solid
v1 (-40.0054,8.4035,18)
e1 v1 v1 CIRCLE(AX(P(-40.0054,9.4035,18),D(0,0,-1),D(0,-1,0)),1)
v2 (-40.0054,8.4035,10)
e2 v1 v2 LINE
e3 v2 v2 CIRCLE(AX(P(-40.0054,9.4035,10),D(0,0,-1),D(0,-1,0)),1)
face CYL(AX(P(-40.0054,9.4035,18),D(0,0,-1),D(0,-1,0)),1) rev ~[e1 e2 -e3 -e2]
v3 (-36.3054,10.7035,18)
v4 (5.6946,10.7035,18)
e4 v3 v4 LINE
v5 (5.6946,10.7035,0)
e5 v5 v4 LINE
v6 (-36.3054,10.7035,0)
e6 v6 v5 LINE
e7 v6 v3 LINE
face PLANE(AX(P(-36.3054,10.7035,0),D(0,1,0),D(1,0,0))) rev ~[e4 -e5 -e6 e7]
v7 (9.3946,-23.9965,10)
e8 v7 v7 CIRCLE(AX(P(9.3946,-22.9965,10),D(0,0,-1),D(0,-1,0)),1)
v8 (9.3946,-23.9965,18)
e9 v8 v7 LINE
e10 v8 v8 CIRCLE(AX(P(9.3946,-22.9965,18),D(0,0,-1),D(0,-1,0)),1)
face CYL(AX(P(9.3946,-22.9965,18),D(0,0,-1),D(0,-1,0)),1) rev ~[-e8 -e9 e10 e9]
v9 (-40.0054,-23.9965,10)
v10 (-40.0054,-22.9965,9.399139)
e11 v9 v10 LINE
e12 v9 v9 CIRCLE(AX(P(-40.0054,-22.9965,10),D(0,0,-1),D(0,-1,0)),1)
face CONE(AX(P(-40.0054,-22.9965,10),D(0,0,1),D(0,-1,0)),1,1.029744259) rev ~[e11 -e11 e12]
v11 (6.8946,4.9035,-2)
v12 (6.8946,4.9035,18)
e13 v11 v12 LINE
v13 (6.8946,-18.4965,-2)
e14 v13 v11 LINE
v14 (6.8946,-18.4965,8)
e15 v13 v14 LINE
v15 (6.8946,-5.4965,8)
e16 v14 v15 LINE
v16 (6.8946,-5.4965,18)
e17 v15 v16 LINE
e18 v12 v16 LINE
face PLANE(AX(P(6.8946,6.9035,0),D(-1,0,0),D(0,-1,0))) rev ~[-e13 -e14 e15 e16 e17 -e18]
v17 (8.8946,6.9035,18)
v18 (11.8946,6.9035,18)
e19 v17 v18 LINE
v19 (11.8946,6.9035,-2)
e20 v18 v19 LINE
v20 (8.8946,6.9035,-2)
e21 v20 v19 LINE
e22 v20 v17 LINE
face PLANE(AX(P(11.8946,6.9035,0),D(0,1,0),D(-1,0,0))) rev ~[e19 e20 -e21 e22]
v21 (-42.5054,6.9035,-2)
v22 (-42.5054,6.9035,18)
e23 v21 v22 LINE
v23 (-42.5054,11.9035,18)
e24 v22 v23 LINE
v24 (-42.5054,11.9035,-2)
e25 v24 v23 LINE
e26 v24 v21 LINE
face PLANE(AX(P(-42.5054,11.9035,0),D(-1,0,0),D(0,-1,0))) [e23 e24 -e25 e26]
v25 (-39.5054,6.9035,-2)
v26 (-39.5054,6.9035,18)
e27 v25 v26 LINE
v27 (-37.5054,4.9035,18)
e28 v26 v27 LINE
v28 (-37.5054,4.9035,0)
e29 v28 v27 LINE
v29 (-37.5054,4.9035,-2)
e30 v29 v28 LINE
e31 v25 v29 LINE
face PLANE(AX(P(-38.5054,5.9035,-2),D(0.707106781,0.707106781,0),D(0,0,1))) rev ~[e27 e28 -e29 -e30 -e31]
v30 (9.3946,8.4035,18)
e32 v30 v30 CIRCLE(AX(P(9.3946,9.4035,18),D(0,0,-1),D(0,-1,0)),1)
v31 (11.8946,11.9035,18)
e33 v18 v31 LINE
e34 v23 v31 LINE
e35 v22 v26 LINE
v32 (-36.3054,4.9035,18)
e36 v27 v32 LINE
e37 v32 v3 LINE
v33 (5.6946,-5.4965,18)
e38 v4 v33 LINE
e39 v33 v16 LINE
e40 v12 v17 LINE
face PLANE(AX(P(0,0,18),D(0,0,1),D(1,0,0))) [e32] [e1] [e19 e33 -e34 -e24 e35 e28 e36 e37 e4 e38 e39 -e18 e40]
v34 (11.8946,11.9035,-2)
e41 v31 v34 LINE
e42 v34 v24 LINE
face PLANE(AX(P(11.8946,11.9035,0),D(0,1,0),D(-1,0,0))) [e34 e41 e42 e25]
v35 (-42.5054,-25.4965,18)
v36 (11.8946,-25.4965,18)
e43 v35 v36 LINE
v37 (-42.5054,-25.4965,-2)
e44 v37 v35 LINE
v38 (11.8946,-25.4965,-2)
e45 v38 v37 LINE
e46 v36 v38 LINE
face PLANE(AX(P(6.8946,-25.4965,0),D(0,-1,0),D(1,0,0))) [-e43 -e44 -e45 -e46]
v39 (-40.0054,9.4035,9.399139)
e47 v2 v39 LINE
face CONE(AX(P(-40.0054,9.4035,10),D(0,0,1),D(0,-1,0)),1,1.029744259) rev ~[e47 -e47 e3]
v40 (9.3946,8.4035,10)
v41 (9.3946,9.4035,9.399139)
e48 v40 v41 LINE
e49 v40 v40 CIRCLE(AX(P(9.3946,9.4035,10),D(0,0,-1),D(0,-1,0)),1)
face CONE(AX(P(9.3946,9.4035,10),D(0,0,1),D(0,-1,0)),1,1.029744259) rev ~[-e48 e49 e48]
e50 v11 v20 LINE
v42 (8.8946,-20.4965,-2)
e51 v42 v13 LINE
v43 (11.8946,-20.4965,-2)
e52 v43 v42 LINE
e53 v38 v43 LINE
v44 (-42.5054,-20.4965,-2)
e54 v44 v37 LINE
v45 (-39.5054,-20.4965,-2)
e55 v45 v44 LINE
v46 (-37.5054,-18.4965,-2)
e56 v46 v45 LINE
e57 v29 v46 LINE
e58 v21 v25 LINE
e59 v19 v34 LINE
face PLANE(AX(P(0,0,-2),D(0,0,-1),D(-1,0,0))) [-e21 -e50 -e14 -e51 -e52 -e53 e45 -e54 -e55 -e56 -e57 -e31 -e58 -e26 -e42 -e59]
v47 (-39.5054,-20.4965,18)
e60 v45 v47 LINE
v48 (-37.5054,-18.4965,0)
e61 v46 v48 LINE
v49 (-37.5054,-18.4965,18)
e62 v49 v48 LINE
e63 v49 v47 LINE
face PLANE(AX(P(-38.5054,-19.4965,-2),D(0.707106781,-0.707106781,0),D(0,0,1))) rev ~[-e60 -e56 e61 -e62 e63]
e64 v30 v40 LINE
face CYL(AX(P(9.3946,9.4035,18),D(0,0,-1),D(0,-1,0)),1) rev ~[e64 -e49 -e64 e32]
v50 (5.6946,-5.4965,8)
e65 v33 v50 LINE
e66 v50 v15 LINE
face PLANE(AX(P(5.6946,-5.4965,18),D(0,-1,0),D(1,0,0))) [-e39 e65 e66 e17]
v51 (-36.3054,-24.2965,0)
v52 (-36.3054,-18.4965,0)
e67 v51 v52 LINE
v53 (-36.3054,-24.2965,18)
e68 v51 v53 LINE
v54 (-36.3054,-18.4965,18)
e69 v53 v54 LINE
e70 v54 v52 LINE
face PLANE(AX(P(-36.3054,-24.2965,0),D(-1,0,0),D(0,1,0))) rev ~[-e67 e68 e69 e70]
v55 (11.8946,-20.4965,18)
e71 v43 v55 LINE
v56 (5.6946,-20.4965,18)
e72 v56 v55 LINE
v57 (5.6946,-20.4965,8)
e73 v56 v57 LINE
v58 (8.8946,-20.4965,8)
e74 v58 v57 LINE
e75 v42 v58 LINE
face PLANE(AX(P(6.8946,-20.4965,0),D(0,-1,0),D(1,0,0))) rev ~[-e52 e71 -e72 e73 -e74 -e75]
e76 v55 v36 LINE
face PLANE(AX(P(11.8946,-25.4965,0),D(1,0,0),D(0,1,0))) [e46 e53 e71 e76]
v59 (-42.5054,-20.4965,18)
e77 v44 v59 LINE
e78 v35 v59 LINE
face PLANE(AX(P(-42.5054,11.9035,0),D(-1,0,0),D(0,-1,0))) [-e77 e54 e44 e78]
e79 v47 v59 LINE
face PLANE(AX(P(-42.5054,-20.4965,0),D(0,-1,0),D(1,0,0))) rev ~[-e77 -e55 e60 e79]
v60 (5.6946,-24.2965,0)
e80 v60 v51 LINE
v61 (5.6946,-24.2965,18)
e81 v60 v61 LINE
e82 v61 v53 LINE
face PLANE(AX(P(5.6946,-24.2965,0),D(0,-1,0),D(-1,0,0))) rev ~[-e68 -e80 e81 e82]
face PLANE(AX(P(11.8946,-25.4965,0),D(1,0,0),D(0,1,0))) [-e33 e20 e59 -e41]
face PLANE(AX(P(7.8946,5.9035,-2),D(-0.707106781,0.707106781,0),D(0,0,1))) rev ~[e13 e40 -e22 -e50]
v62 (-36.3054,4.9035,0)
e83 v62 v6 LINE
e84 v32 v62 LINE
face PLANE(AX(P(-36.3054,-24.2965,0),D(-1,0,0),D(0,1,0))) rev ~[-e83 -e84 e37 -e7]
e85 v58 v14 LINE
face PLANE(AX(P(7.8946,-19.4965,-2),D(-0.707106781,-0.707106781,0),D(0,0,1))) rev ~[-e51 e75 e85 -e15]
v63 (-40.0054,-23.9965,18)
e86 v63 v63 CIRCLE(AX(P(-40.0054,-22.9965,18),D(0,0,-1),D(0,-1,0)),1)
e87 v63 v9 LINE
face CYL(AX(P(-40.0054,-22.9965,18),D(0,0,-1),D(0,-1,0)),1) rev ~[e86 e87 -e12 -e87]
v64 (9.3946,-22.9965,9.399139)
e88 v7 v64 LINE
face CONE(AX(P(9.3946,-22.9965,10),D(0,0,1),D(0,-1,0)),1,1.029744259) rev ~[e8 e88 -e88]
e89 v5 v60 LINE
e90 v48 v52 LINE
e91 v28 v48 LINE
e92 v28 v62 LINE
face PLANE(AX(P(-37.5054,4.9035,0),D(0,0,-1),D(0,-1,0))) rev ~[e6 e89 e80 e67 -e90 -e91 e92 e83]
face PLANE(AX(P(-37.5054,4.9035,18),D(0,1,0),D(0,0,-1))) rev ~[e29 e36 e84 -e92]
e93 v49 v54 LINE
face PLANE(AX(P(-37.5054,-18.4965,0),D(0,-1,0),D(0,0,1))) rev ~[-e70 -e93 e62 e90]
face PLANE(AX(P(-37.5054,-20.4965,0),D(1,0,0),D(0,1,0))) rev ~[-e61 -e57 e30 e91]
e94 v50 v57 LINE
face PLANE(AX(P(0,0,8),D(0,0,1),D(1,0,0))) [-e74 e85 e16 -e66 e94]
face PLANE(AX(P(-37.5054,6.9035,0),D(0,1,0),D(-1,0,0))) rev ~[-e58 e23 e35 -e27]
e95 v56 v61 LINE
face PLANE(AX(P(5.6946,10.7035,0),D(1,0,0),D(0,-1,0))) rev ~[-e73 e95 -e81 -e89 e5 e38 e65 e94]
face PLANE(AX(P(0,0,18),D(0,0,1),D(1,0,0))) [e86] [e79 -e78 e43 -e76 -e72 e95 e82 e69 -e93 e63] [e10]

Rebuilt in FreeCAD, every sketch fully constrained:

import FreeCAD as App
import Part
import Sketcher

V = App.Vector
Q = App.Units.Quantity


def edges_at(feature, points):
    """Names of the edges that pass closest to the given points."""
    edges = feature.Shape.Edges
    near = lambda p: min(range(len(edges)), key=lambda i: edges[i].distToShape(Part.Vertex(*p))[0])
    return sorted({f"Edge{near(p) + 1}" for p in points})

doc = App.newDocument("Part")
body = doc.addObject("PartDesign::Body", "Body")

sketch1 = body.newObject("Sketcher::SketchObject", "Sketch")
sketch1.AttachmentSupport = (doc.getObject("XY_Plane"), [""])
sketch1.MapMode = "FlatFace"
sketch1.addGeometry([
    Part.LineSegment(V(7, 12, 0), V(-38, 12, 0)),
    Part.LineSegment(V(-38, 12, 0), V(-38, -25, 0)),
    Part.LineSegment(V(-38, -25, 0), V(7, -25, 0)),
    Part.LineSegment(V(7, -25, 0), V(7, 12, 0)),
    Part.LineSegment(V(-36, -24, 0), V(-36, 11, 0)),
    Part.LineSegment(V(-36, 11, 0), V(6, 11, 0)),
    Part.LineSegment(V(6, 11, 0), V(6, -24, 0)),
    Part.LineSegment(V(6, -24, 0), V(-36, -24, 0)),
], False)
sketch1.addConstraint([
    Sketcher.Constraint("Coincident", 0, 2, 1, 1),
    Sketcher.Constraint("Coincident", 1, 2, 2, 1),
    Sketcher.Constraint("Coincident", 2, 2, 3, 1),
    Sketcher.Constraint("Coincident", 3, 2, 0, 1),
    Sketcher.Constraint("Coincident", 4, 2, 5, 1),
    Sketcher.Constraint("Coincident", 5, 2, 6, 1),
    Sketcher.Constraint("Coincident", 6, 2, 7, 1),
    Sketcher.Constraint("Coincident", 7, 2, 4, 1),
    Sketcher.Constraint("Horizontal", 0),
    Sketcher.Constraint("Vertical", 1),
    Sketcher.Constraint("Horizontal", 2),
    Sketcher.Constraint("Vertical", 3),
    Sketcher.Constraint("Vertical", 4),
    Sketcher.Constraint("Horizontal", 5),
    Sketcher.Constraint("Vertical", 6),
    Sketcher.Constraint("Horizontal", 7),
    Sketcher.Constraint("DistanceX", 5, 1, 5, 2, Q("42 mm")),
    Sketcher.Constraint("DistanceY", 4, 1, 4, 2, Q("35 mm")),
    Sketcher.Constraint("DistanceX", 0, 2, 4, 2, Q("1.2 mm")),
    Sketcher.Constraint("DistanceY", 4, 2, 0, 2, Q("1.2 mm")),
    Sketcher.Constraint("DistanceX", 5, 2, 3, 2, Q("1.2 mm")),
    Sketcher.Constraint("DistanceY", 2, 2, 6, 2, Q("1.2 mm")),
    Sketcher.Constraint("DistanceX", 0, 2, -1, 1, Q("37.5054 mm")),
    Sketcher.Constraint("DistanceY", -1, 1, 0, 2, Q("11.9035 mm")),
])
pad1 = body.newObject("PartDesign::Pad", "Pad")
pad1.Profile = sketch1
pad1.Length = 18

sketch2 = body.newObject("Sketcher::SketchObject", "Sketch001")
sketch2.AttachmentSupport = (doc.getObject("XY_Plane"), [""])
sketch2.MapMode = "FlatFace"
sketch2.addGeometry([
    Part.LineSegment(V(12, 12, 0), V(12, -25, 0)),
    Part.LineSegment(V(12, -25, 0), V(-43, -25, 0)),
    Part.LineSegment(V(-43, -25, 0), V(-43, 12, 0)),
    Part.LineSegment(V(-43, 12, 0), V(12, 12, 0)),
], False)
sketch2.addConstraint([
    Sketcher.Constraint("Coincident", 0, 2, 1, 1),
    Sketcher.Constraint("Coincident", 1, 2, 2, 1),
    Sketcher.Constraint("Coincident", 2, 2, 3, 1),
    Sketcher.Constraint("Coincident", 3, 2, 0, 1),
    Sketcher.Constraint("Vertical", 0),
    Sketcher.Constraint("Horizontal", 1),
    Sketcher.Constraint("Vertical", 2),
    Sketcher.Constraint("Horizontal", 3),
    Sketcher.Constraint("DistanceX", 1, 2, 1, 1, Q("54.4 mm")),
    Sketcher.Constraint("DistanceY", 0, 2, 0, 1, Q("37.4 mm")),
    Sketcher.Constraint("DistanceX", -1, 1, 0, 2, Q("11.8946 mm")),
    Sketcher.Constraint("DistanceY", 0, 2, -1, 1, Q("25.4965 mm")),
])
pad2 = body.newObject("PartDesign::Pad", "Pad001")
pad2.Profile = sketch2
pad2.Length = 2
pad2.Reversed = True

sketch3 = body.newObject("Sketcher::SketchObject", "Sketch002")
sketch3.AttachmentSupport = (doc.getObject("XY_Plane"), [""])
sketch3.MapMode = "FlatFace"
sketch3.addGeometry([
    Part.LineSegment(V(11.9, -20.5, 0), V(6.9, -20.5, 0)),
    Part.LineSegment(V(6.9, -20.5, 0), V(6.9, -25.5, 0)),
    Part.LineSegment(V(6.9, -25.5, 0), V(11.9, -25.5, 0)),
    Part.LineSegment(V(11.9, -25.5, 0), V(11.9, -20.5, 0)),
    Part.LineSegment(V(11.9, 11.9, 0), V(6.9, 11.9, 0)),
    Part.LineSegment(V(6.9, 11.9, 0), V(6.9, 6.9, 0)),
    Part.LineSegment(V(6.9, 6.9, 0), V(11.9, 6.9, 0)),
    Part.LineSegment(V(11.9, 6.9, 0), V(11.9, 11.9, 0)),
    Part.LineSegment(V(-37.5, 11.9, 0), V(-42.5, 11.9, 0)),
    Part.LineSegment(V(-42.5, 11.9, 0), V(-42.5, 6.9, 0)),
    Part.LineSegment(V(-42.5, 6.9, 0), V(-37.5, 6.9, 0)),
    Part.LineSegment(V(-37.5, 6.9, 0), V(-37.5, 11.9, 0)),
    Part.LineSegment(V(-37.5, -20.5, 0), V(-42.5, -20.5, 0)),
    Part.LineSegment(V(-42.5, -20.5, 0), V(-42.5, -25.5, 0)),
    Part.LineSegment(V(-42.5, -25.5, 0), V(-37.5, -25.5, 0)),
    Part.LineSegment(V(-37.5, -25.5, 0), V(-37.5, -20.5, 0)),
], False)
sketch3.addConstraint([
    Sketcher.Constraint("Coincident", 0, 2, 1, 1),
    Sketcher.Constraint("Coincident", 1, 2, 2, 1),
    Sketcher.Constraint("Coincident", 2, 2, 3, 1),
    Sketcher.Constraint("Coincident", 3, 2, 0, 1),
    Sketcher.Constraint("Coincident", 4, 2, 5, 1),
    Sketcher.Constraint("Coincident", 5, 2, 6, 1),
    Sketcher.Constraint("Coincident", 6, 2, 7, 1),
    Sketcher.Constraint("Coincident", 7, 2, 4, 1),
    Sketcher.Constraint("Coincident", 8, 2, 9, 1),
    Sketcher.Constraint("Coincident", 9, 2, 10, 1),
    Sketcher.Constraint("Coincident", 10, 2, 11, 1),
    Sketcher.Constraint("Coincident", 11, 2, 8, 1),
    Sketcher.Constraint("Coincident", 12, 2, 13, 1),
    Sketcher.Constraint("Coincident", 13, 2, 14, 1),
    Sketcher.Constraint("Coincident", 14, 2, 15, 1),
    Sketcher.Constraint("Coincident", 15, 2, 12, 1),
    Sketcher.Constraint("Horizontal", 0),
    Sketcher.Constraint("Vertical", 1),
    Sketcher.Constraint("Horizontal", 2),
    Sketcher.Constraint("Vertical", 3),
    Sketcher.Constraint("Horizontal", 4),
    Sketcher.Constraint("Vertical", 5),
    Sketcher.Constraint("Horizontal", 6),
    Sketcher.Constraint("Vertical", 7),
    Sketcher.Constraint("Horizontal", 8),
    Sketcher.Constraint("Vertical", 9),
    Sketcher.Constraint("Horizontal", 10),
    Sketcher.Constraint("Vertical", 11),
    Sketcher.Constraint("Horizontal", 12),
    Sketcher.Constraint("Vertical", 13),
    Sketcher.Constraint("Horizontal", 14),
    Sketcher.Constraint("Vertical", 15),
    Sketcher.Constraint("Horizontal", 7, 2, 8, 2),
    Sketcher.Constraint("Horizontal", 6, 2, 9, 2),
    Sketcher.Constraint("Horizontal", 3, 2, 12, 2),
    Sketcher.Constraint("Horizontal", 2, 2, 13, 2),
    Sketcher.Constraint("Vertical", 1, 2, 4, 2),
    Sketcher.Constraint("Vertical", 3, 2, 6, 2),
    Sketcher.Constraint("Vertical", 9, 2, 12, 2),
    Sketcher.Constraint("Vertical", 11, 2, 14, 2),
    Sketcher.Constraint("Equal", 6, 8),
    Sketcher.Constraint("Equal", 14, 1),
    Sketcher.Constraint("Equal", 3, 5),
    Sketcher.Constraint("DistanceX", 0, 2, 0, 1, Q("5 mm")),
    Sketcher.Constraint("DistanceY", 0, 2, 4, 2, Q("32.4 mm")),
    Sketcher.Constraint("DistanceX", 8, 2, 4, 2, Q("49.4 mm")),
    Sketcher.Constraint("DistanceX", -1, 1, 0, 2, Q("6.8946 mm")),
    Sketcher.Constraint("DistanceY", 0, 2, -1, 1, Q("20.4965 mm")),
])
pad3 = body.newObject("PartDesign::Pad", "Pad002")
pad3.Profile = sketch3
pad3.Length = 18

sketch4 = body.newObject("Sketcher::SketchObject", "Sketch003")
sketch4.AttachmentSupport = (doc.getObject("XY_Plane"), [""])
sketch4.MapMode = "FlatFace"
sketch4.addGeometry([
    Part.LineSegment(V(-38, -20, 0), V(-38, 7, 0)),
    Part.LineSegment(V(-38, 7, 0), V(-43, 7, 0)),
    Part.LineSegment(V(-43, 7, 0), V(-43, -20, 0)),
    Part.LineSegment(V(-43, -20, 0), V(-38, -20, 0)),
    Part.LineSegment(V(7, 7, 0), V(7, -20, 0)),
    Part.LineSegment(V(7, -20, 0), V(12, -20, 0)),
    Part.LineSegment(V(12, -20, 0), V(12, 7, 0)),
    Part.LineSegment(V(12, 7, 0), V(7, 7, 0)),
], False)
sketch4.addConstraint([
    Sketcher.Constraint("Coincident", 0, 2, 1, 1),
    Sketcher.Constraint("Coincident", 1, 2, 2, 1),
    Sketcher.Constraint("Coincident", 2, 2, 3, 1),
    Sketcher.Constraint("Coincident", 3, 2, 0, 1),
    Sketcher.Constraint("Coincident", 4, 2, 5, 1),
    Sketcher.Constraint("Coincident", 5, 2, 6, 1),
    Sketcher.Constraint("Coincident", 6, 2, 7, 1),
    Sketcher.Constraint("Coincident", 7, 2, 4, 1),
    Sketcher.Constraint("Vertical", 0),
    Sketcher.Constraint("Horizontal", 1),
    Sketcher.Constraint("Vertical", 2),
    Sketcher.Constraint("Horizontal", 3),
    Sketcher.Constraint("Vertical", 4),
    Sketcher.Constraint("Horizontal", 5),
    Sketcher.Constraint("Vertical", 6),
    Sketcher.Constraint("Horizontal", 7),
    Sketcher.Constraint("Horizontal", 3, 2, 4, 2),
    Sketcher.Constraint("Horizontal", 1, 2, 6, 2),
    Sketcher.Constraint("Equal", 3, 5),
    Sketcher.Constraint("DistanceX", 1, 2, 1, 1, Q("5 mm")),
    Sketcher.Constraint("DistanceY", 0, 1, 0, 2, Q("27.4 mm")),
    Sketcher.Constraint("DistanceX", 3, 2, 4, 2, Q("44.4 mm")),
    Sketcher.Constraint("DistanceX", 0, 2, -1, 1, Q("37.5054 mm")),
    Sketcher.Constraint("DistanceY", -1, 1, 0, 2, Q("6.9035 mm")),
])
pocket1 = body.newObject("PartDesign::Pocket", "Pocket")
pocket1.Profile = sketch4
pocket1.Length = 18
doc.recompute()

chamfer = body.newObject("PartDesign::Chamfer", "Chamfer")
chamfer.Base = (pocket1, edges_at(pocket1, [
    (-37.505, 6.904, 8),
    (-37.505, -20.497, 8),
    (6.895, 6.904, 8),
    (6.895, -20.497, 8),
]))
chamfer.Size = 2

sketch5 = body.newObject("Sketcher::SketchObject", "Sketch004")
sketch5.AttachmentSupport = (doc.getObject("XY_Plane"), [""])
sketch5.MapMode = "FlatFace"
sketch5.AttachmentOffset = App.Placement(V(0, 0, 18), App.Rotation())
sketch5.addGeometry([
    Part.LineSegment(V(8.9, -5.5, 0), V(5.7, -5.5, 0)),
    Part.LineSegment(V(5.7, -5.5, 0), V(5.7, -20.5, 0)),
    Part.LineSegment(V(5.7, -20.5, 0), V(8.9, -20.5, 0)),
    Part.LineSegment(V(8.9, -20.5, 0), V(8.9, -5.5, 0)),
], False)
sketch5.addConstraint([
    Sketcher.Constraint("Coincident", 0, 2, 1, 1),
    Sketcher.Constraint("Coincident", 1, 2, 2, 1),
    Sketcher.Constraint("Coincident", 2, 2, 3, 1),
    Sketcher.Constraint("Coincident", 3, 2, 0, 1),
    Sketcher.Constraint("Horizontal", 0),
    Sketcher.Constraint("Vertical", 1),
    Sketcher.Constraint("Horizontal", 2),
    Sketcher.Constraint("Vertical", 3),
    Sketcher.Constraint("DistanceY", 1, 2, 1, 1, Q("15 mm")),
    Sketcher.Constraint("DistanceX", 0, 2, 0, 1, Q("3.2 mm")),
    Sketcher.Constraint("DistanceX", -1, 1, 0, 2, Q("5.6946 mm")),
    Sketcher.Constraint("DistanceY", 0, 2, -1, 1, Q("5.4965 mm")),
])
pocket2 = body.newObject("PartDesign::Pocket", "Pocket001")
pocket2.Profile = sketch5
pocket2.Length = 10

sketch6 = body.newObject("Sketcher::SketchObject", "Sketch005")
sketch6.AttachmentSupport = (doc.getObject("XY_Plane"), [""])
sketch6.MapMode = "FlatFace"
sketch6.AttachmentOffset = App.Placement(V(0, 0, 18), App.Rotation())
sketch6.addGeometry([
    Part.Circle(V(-40, 9.4, 0), V(0, 0, 1), 1),
    Part.Circle(V(-40, -23, 0), V(0, 0, 1), 1),
    Part.Circle(V(9.4, -23, 0), V(0, 0, 1), 1),
    Part.Circle(V(9.4, 9.4, 0), V(0, 0, 1), 1),
], False)
sketch6.addConstraint([
    Sketcher.Constraint("Equal", 0, 1),
    Sketcher.Constraint("Equal", 1, 2),
    Sketcher.Constraint("Equal", 2, 3),
    Sketcher.Constraint("Horizontal", 1, 3, 2, 3),
    Sketcher.Constraint("Horizontal", 0, 3, 3, 3),
    Sketcher.Constraint("Vertical", 0, 3, 1, 3),
    Sketcher.Constraint("Vertical", 2, 3, 3, 3),
    Sketcher.Constraint("Diameter", 0, Q("2 mm")),
    Sketcher.Constraint("DistanceY", 1, 3, 0, 3, Q("32.4 mm")),
    Sketcher.Constraint("DistanceX", 1, 3, 2, 3, Q("49.4 mm")),
    Sketcher.Constraint("DistanceX", 0, 3, -1, 1, Q("40.0054 mm")),
    Sketcher.Constraint("DistanceY", -1, 1, 0, 3, Q("9.4035 mm")),
])
doc.recompute()
hole = body.newObject("PartDesign::Hole", "Hole")
hole.Profile = sketch6
hole.ThreadType = "None"
hole.Diameter = 2
hole.DepthType = "Dimension"
hole.Depth = 8
hole.DrillPoint = "Angled"
hole.DrillPointAngle = 118

sketch7 = body.newObject("Sketcher::SketchObject", "Sketch006")
sketch7.AttachmentSupport = (doc.getObject("YZ_Plane"), [""])
sketch7.MapMode = "FlatFace"
sketch7.AttachmentOffset = App.Placement(V(0, 0, -37.5054), App.Rotation())
sketch7.addGeometry([
    Part.LineSegment(V(5, 0, 0), V(-18, 0, 0)),
    Part.LineSegment(V(-18, 0, 0), V(-18, 18, 0)),
    Part.LineSegment(V(-18, 18, 0), V(5, 18, 0)),
    Part.LineSegment(V(5, 18, 0), V(5, 0, 0)),
], False)
sketch7.addConstraint([
    Sketcher.Constraint("Coincident", 0, 2, 1, 1),
    Sketcher.Constraint("Coincident", 1, 2, 2, 1),
    Sketcher.Constraint("Coincident", 2, 2, 3, 1),
    Sketcher.Constraint("Coincident", 3, 2, 0, 1),
    Sketcher.Constraint("Horizontal", 0),
    Sketcher.Constraint("Vertical", 1),
    Sketcher.Constraint("Horizontal", 2),
    Sketcher.Constraint("Vertical", 3),
    Sketcher.Constraint("PointOnObject", 0, 2, -1),
    Sketcher.Constraint("DistanceY", 1, 1, 1, 2, Q("18 mm")),
    Sketcher.Constraint("DistanceX", 0, 2, 0, 1, Q("23.4 mm")),
    Sketcher.Constraint("DistanceX", 0, 2, -1, 1, Q("18.4965 mm")),
])
pocket3 = body.newObject("PartDesign::Pocket", "Pocket002")
pocket3.Profile = sketch7
pocket3.Length = 2
pocket3.Reversed = True

doc.recompute()
